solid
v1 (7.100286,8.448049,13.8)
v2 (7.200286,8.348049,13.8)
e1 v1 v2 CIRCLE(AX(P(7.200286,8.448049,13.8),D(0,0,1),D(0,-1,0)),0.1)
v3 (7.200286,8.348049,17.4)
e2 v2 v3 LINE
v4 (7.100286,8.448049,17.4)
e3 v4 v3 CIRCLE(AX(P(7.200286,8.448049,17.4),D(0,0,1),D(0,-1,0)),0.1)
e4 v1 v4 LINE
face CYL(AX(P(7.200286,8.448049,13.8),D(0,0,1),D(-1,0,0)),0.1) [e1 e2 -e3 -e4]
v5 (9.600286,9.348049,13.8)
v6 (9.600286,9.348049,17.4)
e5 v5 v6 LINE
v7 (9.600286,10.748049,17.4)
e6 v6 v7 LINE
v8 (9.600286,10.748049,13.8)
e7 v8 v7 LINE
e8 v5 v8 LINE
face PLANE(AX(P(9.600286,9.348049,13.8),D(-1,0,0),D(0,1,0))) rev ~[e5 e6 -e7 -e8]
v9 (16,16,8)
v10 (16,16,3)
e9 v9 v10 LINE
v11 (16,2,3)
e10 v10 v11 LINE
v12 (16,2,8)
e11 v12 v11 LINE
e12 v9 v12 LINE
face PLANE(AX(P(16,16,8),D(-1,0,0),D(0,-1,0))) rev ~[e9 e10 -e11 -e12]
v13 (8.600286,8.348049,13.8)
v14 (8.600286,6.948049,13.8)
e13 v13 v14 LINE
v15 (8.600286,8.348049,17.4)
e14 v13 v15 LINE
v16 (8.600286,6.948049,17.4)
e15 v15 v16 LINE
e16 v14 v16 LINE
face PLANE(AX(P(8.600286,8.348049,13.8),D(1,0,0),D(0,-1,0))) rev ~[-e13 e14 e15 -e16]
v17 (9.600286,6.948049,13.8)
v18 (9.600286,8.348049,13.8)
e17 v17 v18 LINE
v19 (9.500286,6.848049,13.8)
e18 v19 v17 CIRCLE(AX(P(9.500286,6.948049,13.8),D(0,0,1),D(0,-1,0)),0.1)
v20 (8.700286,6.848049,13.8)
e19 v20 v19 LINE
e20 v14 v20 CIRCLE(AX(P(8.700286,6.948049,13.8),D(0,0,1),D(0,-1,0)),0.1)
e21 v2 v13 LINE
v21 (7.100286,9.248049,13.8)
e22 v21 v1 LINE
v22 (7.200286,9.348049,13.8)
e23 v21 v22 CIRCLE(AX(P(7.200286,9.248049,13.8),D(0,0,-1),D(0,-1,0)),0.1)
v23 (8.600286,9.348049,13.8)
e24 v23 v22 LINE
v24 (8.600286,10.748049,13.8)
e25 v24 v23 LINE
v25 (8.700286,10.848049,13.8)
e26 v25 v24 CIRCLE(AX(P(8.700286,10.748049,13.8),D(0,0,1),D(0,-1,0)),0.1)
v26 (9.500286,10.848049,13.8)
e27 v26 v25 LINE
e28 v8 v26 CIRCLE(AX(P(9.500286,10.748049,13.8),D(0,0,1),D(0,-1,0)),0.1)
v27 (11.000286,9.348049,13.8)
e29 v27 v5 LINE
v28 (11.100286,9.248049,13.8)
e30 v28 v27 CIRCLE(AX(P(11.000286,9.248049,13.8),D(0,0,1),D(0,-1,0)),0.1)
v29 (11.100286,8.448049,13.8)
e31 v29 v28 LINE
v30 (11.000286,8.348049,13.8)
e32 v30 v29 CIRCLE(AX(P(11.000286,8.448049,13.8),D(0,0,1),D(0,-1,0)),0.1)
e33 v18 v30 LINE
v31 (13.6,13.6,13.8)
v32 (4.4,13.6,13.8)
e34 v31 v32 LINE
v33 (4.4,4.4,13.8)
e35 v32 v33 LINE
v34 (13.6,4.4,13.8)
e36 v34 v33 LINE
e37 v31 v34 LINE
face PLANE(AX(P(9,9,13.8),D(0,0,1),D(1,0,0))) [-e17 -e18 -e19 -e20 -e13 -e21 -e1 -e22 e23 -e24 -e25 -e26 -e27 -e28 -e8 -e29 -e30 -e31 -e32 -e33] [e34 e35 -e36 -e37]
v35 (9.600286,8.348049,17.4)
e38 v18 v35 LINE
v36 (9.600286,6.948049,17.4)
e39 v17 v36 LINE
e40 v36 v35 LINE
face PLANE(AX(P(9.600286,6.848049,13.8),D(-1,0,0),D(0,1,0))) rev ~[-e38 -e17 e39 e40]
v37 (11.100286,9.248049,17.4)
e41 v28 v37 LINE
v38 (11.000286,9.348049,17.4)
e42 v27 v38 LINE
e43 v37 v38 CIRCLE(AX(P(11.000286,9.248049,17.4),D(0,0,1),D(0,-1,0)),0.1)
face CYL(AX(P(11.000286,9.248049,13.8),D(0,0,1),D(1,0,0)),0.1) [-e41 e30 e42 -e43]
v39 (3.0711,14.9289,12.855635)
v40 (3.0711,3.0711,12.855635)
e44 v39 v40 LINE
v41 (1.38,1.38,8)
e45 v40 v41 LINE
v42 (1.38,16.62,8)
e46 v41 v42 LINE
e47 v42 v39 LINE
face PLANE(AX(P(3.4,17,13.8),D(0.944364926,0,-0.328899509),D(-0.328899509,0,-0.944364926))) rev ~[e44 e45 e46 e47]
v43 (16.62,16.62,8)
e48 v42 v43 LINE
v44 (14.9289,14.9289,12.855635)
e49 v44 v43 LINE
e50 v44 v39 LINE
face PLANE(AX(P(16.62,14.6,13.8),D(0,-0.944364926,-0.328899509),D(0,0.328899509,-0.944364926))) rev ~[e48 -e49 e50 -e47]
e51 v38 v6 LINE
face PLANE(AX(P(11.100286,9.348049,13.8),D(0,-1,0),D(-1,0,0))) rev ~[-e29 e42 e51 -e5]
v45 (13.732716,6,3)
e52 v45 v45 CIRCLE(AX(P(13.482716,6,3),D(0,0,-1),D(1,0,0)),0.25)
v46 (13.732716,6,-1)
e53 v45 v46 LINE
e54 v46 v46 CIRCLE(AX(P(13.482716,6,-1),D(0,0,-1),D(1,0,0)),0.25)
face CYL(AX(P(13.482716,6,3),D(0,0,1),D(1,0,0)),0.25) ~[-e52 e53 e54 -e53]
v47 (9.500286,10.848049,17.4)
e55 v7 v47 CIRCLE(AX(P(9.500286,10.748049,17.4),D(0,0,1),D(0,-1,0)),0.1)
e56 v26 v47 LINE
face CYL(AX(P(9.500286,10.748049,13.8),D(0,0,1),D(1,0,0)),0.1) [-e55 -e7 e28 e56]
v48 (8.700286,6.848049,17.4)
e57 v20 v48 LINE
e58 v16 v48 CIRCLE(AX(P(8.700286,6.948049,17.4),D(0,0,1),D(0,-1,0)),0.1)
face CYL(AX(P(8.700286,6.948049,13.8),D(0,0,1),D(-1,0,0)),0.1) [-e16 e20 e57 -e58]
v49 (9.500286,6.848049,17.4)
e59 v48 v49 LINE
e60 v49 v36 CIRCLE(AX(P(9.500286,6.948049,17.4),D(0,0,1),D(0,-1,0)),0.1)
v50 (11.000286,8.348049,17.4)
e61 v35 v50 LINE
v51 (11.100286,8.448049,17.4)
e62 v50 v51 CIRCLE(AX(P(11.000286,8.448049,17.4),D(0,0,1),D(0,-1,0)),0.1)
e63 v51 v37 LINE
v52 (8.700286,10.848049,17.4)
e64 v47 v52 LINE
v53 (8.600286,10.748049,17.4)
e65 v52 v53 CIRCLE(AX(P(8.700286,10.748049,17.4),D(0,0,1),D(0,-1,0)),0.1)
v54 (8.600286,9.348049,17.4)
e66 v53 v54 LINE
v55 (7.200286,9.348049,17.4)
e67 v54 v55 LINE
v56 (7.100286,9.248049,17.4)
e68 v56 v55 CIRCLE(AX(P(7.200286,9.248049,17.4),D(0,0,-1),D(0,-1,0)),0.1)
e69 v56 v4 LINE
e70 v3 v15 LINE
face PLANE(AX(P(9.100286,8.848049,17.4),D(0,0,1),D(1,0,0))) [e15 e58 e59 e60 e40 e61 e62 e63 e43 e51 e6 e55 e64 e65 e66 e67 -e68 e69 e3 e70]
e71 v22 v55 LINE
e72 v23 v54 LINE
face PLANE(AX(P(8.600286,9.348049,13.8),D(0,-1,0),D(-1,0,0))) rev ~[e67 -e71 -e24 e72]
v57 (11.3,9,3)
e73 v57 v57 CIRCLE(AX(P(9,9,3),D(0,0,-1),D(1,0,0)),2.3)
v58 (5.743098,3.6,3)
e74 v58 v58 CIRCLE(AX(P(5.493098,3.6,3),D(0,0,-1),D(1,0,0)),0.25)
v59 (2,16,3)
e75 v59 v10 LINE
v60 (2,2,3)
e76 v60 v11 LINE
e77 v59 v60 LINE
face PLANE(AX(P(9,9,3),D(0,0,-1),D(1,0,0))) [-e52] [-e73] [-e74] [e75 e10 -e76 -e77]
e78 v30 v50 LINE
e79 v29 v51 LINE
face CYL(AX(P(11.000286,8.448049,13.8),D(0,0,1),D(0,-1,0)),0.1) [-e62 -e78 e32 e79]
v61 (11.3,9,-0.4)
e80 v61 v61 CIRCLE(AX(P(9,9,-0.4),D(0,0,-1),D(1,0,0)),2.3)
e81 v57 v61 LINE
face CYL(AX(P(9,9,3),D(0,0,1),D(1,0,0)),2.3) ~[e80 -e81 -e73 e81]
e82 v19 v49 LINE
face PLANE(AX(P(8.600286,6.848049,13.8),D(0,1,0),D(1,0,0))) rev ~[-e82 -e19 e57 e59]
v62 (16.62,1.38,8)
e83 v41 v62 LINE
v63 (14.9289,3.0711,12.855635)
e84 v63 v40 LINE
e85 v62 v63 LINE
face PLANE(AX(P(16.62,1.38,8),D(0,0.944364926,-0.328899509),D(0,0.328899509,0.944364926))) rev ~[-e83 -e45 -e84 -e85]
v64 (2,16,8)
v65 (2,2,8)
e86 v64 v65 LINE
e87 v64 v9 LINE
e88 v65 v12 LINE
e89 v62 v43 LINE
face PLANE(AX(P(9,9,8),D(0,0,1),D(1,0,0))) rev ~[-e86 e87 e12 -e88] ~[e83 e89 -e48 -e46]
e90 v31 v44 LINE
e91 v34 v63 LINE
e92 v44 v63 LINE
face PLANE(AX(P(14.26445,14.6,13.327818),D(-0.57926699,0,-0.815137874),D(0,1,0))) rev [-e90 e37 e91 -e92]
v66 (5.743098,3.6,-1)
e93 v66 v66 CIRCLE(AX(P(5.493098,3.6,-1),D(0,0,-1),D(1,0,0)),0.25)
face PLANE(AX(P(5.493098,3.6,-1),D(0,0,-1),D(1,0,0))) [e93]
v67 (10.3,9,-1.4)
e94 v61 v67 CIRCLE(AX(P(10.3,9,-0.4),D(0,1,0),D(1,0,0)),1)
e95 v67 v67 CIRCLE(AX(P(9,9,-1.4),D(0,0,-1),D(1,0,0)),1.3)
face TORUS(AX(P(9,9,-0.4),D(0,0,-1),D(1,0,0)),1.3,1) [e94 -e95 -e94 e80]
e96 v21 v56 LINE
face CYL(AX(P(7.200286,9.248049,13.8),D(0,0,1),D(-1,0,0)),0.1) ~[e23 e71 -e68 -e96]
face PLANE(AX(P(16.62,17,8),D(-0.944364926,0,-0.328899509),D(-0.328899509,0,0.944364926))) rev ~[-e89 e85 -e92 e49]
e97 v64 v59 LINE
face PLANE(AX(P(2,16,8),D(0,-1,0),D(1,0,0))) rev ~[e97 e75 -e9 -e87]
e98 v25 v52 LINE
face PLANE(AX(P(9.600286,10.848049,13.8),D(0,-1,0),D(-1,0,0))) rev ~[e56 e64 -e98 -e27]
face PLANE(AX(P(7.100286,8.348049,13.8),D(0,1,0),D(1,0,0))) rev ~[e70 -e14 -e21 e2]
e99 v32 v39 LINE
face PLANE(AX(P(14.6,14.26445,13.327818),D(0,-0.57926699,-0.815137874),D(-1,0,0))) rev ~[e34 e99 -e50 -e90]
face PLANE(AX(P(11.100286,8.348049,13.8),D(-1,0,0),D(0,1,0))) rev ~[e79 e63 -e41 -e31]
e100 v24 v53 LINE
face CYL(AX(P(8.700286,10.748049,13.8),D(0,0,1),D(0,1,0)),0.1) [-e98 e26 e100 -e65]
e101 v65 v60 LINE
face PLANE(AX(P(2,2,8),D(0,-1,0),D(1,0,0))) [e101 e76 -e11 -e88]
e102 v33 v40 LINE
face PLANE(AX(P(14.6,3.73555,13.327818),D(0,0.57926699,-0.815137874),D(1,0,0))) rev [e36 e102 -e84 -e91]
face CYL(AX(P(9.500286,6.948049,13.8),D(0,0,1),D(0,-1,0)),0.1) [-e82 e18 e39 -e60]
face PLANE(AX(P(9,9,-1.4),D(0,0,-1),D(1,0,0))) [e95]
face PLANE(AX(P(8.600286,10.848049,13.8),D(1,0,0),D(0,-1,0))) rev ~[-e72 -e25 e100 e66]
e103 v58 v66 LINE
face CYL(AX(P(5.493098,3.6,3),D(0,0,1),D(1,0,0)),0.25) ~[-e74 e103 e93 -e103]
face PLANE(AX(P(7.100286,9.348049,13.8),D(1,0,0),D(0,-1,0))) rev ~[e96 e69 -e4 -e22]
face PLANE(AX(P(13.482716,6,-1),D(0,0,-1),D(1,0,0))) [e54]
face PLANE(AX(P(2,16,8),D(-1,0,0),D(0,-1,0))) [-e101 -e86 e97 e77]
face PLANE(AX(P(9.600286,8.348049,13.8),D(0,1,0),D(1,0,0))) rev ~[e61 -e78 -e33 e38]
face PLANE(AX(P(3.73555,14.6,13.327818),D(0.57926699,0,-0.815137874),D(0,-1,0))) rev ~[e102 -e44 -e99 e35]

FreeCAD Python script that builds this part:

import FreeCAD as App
import Part
import Sketcher

V = App.Vector


def edges_at(feature, points):
    """Names of the edges that pass closest to the given points."""
    edges = feature.Shape.Edges
    near = lambda p: min(range(len(edges)), key=lambda i: edges[i].distToShape(Part.Vertex(*p))[0])
    return sorted({f"Edge{near(p) + 1}" for p in points})

doc = App.newDocument("Part")
body = doc.addObject("PartDesign::Body", "Body")

# Sketch on XY plane
sketch1 = doc.addObject("Sketcher::SketchObject", "Sketch")
body.addObject(sketch1)
sketch1.AttachmentSupport = (doc.XY_Plane, [""])
sketch1.MapMode = "FlatFace"
sketch1.addGeometry(Part.LineSegment(V(0, 14, 0), V(0, 0, 0)), False)
sketch1.addGeometry(Part.LineSegment(V(0, 0, 0), V(14, 0, 0)), False)
sketch1.addGeometry(Part.LineSegment(V(14, 0, 0), V(14, 14, 0)), False)
sketch1.addGeometry(Part.LineSegment(V(14, 14, 0), V(0, 14, 0)), False)
sketch1.addConstraint(Sketcher.Constraint("Coincident", 0, 2, 1, 1))
sketch1.addConstraint(Sketcher.Constraint("Coincident", 1, 2, 2, 1))
sketch1.addConstraint(Sketcher.Constraint("Coincident", 2, 2, 3, 1))
sketch1.addConstraint(Sketcher.Constraint("Coincident", 3, 2, 0, 1))
sketch1.addConstraint(Sketcher.Constraint("Vertical", 0))
sketch1.addConstraint(Sketcher.Constraint("Horizontal", 1))
sketch1.addConstraint(Sketcher.Constraint("Vertical", 2))
sketch1.addConstraint(Sketcher.Constraint("Horizontal", 3))
sketch1.addConstraint(Sketcher.Constraint("Coincident", 0, 2, -1, 1))
sketch1.addConstraint(Sketcher.Constraint("Equal", 3, 0))
sketch1.addConstraint(Sketcher.Constraint("DistanceX", 1, 1, 1, 2, 14.0))
pad1 = doc.addObject("PartDesign::Pad", "Pad")
body.addObject(pad1)
pad1.Profile = sketch1
pad1.Length = 5

# Sketch on XY plane
sketch2 = doc.addObject("Sketcher::SketchObject", "Sketch001")
body.addObject(sketch2)
sketch2.AttachmentSupport = (doc.XY_Plane, [""])
sketch2.MapMode = "FlatFace"
sketch2.AttachmentOffset = App.Placement(V(0, 0, 5), App.Rotation())
sketch2.addGeometry(Part.Circle(V(7, 7, 0), V(0, 0, 1), 2.3), False)
sketch2.addConstraint(Sketcher.Constraint("Diameter", 0, 4.6))
sketch2.addConstraint(Sketcher.Constraint("DistanceX", -1, 1, 0, 3, 7.0))
sketch2.addConstraint(Sketcher.Constraint("DistanceY", -1, 1, 0, 3, 7.0))
pad2 = doc.addObject("PartDesign::Pad", "Pad001")
body.addObject(pad2)
pad2.Profile = sketch2
pad2.Length = 4.4
doc.recompute()

fillet = doc.addObject("PartDesign::Fillet", "Fillet")
body.addObject(fillet)
fillet.Base = (pad2, edges_at(pad2, [(4.7, 7, 9.4)]))
fillet.Radius = 1

# Sketch on XY plane
sketch3 = doc.addObject("Sketcher::SketchObject", "Sketch002")
body.addObject(sketch3)
sketch3.AttachmentSupport = (doc.XY_Plane, [""])
sketch3.MapMode = "FlatFace"
sketch3.addGeometry(Part.LineSegment(V(-1, -1, 0), V(-1, 15, 0)), False)
sketch3.addGeometry(Part.LineSegment(V(-1, 15, 0), V(15, 15, 0)), False)
sketch3.addGeometry(Part.LineSegment(V(15, 15, 0), V(15, -1, 0)), False)
sketch3.addGeometry(Part.LineSegment(V(15, -1, 0), V(-1, -1, 0)), False)
sketch3.addConstraint(Sketcher.Constraint("Coincident", 0, 2, 1, 1))
sketch3.addConstraint(Sketcher.Constraint("Coincident", 1, 2, 2, 1))
sketch3.addConstraint(Sketcher.Constraint("Coincident", 2, 2, 3, 1))
sketch3.addConstraint(Sketcher.Constraint("Coincident", 3, 2, 0, 1))
sketch3.addConstraint(Sketcher.Constraint("Vertical", 0))
sketch3.addConstraint(Sketcher.Constraint("Horizontal", 1))
sketch3.addConstraint(Sketcher.Constraint("Vertical", 2))
sketch3.addConstraint(Sketcher.Constraint("Horizontal", 3))
sketch3.addConstraint(Sketcher.Constraint("Equal", 3, 0))
sketch3.addConstraint(Sketcher.Constraint("DistanceX", 1, 1, 1, 2, 15.24))
sketch3.addConstraint(Sketcher.Constraint("DistanceX", 0, 2, -1, 1, 0.62))
sketch3.addConstraint(Sketcher.Constraint("DistanceY", -1, 1, 0, 2, 14.62))
pad3 = doc.addObject("PartDesign::Pad", "Pad002")
body.addObject(pad3)
pad3.Profile = sketch3
pad3.Length = 5.8
pad3.Reversed = True

# Sketch on YZ plane
sketch4 = doc.addObject("Sketcher::SketchObject", "Sketch003")
body.addObject(sketch4)
sketch4.AttachmentSupport = (doc.YZ_Plane, [""])
sketch4.MapMode = "FlatFace"
sketch4.AttachmentOffset = App.Placement(V(0, 0, 14.62), App.Rotation())
sketch4.addGeometry(Part.LineSegment(V(-0.6, -5.8, 0), V(1.4, -5.8, 0)), False)
sketch4.addGeometry(Part.LineSegment(V(1.4, -5.8, 0), V(-0.6, 0, 0)), False)
sketch4.addGeometry(Part.LineSegment(V(-0.6, 0, 0), V(-0.6, -5.8, 0)), False)
sketch4.addGeometry(Part.LineSegment(V(12.6, -5.8, 0), V(14.6, -5.8, 0)), False)
sketch4.addGeometry(Part.LineSegment(V(14.6, -5.8, 0), V(14.6, 0, 0)), False)
sketch4.addGeometry(Part.LineSegment(V(14.6, 0, 0), V(12.6, -5.8, 0)), False)
sketch4.addConstraint(Sketcher.Constraint("Coincident", 0, 2, 1, 1))
sketch4.addConstraint(Sketcher.Constraint("Coincident", 1, 2, 2, 1))
sketch4.addConstraint(Sketcher.Constraint("Coincident", 2, 2, 0, 1))
sketch4.addConstraint(Sketcher.Constraint("Coincident", 3, 2, 4, 1))
sketch4.addConstraint(Sketcher.Constraint("Coincident", 4, 2, 5, 1))
sketch4.addConstraint(Sketcher.Constraint("Coincident", 5, 2, 3, 1))
sketch4.addConstraint(Sketcher.Constraint("Horizontal", 0))
sketch4.addConstraint(Sketcher.Constraint("Vertical", 2))
sketch4.addConstraint(Sketcher.Constraint("Horizontal", 3))
sketch4.addConstraint(Sketcher.Constraint("Vertical", 4))
sketch4.addConstraint(Sketcher.Constraint("PointOnObject", 1, 2, -1))
sketch4.addConstraint(Sketcher.Constraint("PointOnObject", 4, 2, -1))
sketch4.addConstraint(Sketcher.Constraint("Horizontal", 2, 2, 3, 2))
sketch4.addConstraint(Sketcher.Constraint("Equal", 0, 3))
sketch4.addConstraint(Sketcher.Constraint("DistanceY", 2, 2, 2, 1, 5.8))
sketch4.addConstraint(Sketcher.Constraint("DistanceX", 0, 1, 0, 2, 2.02))
sketch4.addConstraint(Sketcher.Constraint("DistanceX", -1, 1, 0, 2, 1.4))
sketch4.addConstraint(Sketcher.Constraint("DistanceX", -1, 1, 5, 2, 12.6))
pocket1 = doc.addObject("PartDesign::Pocket", "Pocket")
body.addObject(pocket1)
pocket1.Profile = sketch4
pocket1.Type = "ThroughAll"

# Sketch on XZ plane
sketch5 = doc.addObject("Sketcher::SketchObject", "Sketch004")
body.addObject(sketch5)
sketch5.AttachmentSupport = (doc.XZ_Plane, [""])
sketch5.MapMode = "FlatFace"
sketch5.AttachmentOffset = App.Placement(V(0, 0, 1), App.Rotation())
sketch5.addGeometry(Part.LineSegment(V(12.6, -5.8, 0), V(14.6, -5.8, 0)), False)
sketch5.addGeometry(Part.LineSegment(V(14.6, -5.8, 0), V(14.6, 0, 0)), False)
sketch5.addGeometry(Part.LineSegment(V(14.6, 0, 0), V(12.6, -5.8, 0)), False)
sketch5.addGeometry(Part.LineSegment(V(-0.6, -5.8, 0), V(1.4, -5.8, 0)), False)
sketch5.addGeometry(Part.LineSegment(V(1.4, -5.8, 0), V(-0.6, 0, 0)), False)
sketch5.addGeometry(Part.LineSegment(V(-0.6, 0, 0), V(-0.6, -5.8, 0)), False)
sketch5.addConstraint(Sketcher.Constraint("Coincident", 0, 2, 1, 1))
sketch5.addConstraint(Sketcher.Constraint("Coincident", 1, 2, 2, 1))
sketch5.addConstraint(Sketcher.Constraint("Coincident", 2, 2, 0, 1))
sketch5.addConstraint(Sketcher.Constraint("Coincident", 3, 2, 4, 1))
sketch5.addConstraint(Sketcher.Constraint("Coincident", 4, 2, 5, 1))
sketch5.addConstraint(Sketcher.Constraint("Coincident", 5, 2, 3, 1))
sketch5.addConstraint(Sketcher.Constraint("Horizontal", 0))
sketch5.addConstraint(Sketcher.Constraint("Vertical", 1))
sketch5.addConstraint(Sketcher.Constraint("Horizontal", 3))
sketch5.addConstraint(Sketcher.Constraint("Vertical", 5))
sketch5.addConstraint(Sketcher.Constraint("PointOnObject", 1, 2, -1))
sketch5.addConstraint(Sketcher.Constraint("PointOnObject", 4, 2, -1))
sketch5.addConstraint(Sketcher.Constraint("Horizontal", 2, 2, 3, 2))
sketch5.addConstraint(Sketcher.Constraint("Equal", 0, 3))
sketch5.addConstraint(Sketcher.Constraint("DistanceY", 1, 1, 1, 2, 5.8))
sketch5.addConstraint(Sketcher.Constraint("DistanceX", 0, 1, 0, 2, 2.02))
sketch5.addConstraint(Sketcher.Constraint("DistanceX", -1, 1, 2, 2, 12.6))
sketch5.addConstraint(Sketcher.Constraint("DistanceX", -1, 1, 3, 2, 1.4))
pocket2 = doc.addObject("PartDesign::Pocket", "Pocket001")
body.addObject(pocket2)
pocket2.Profile = sketch5
pocket2.Type = "ThroughAll"

# Sketch on XY plane
sketch6 = doc.addObject("Sketcher::SketchObject", "Sketch005")
body.addObject(sketch6)
sketch6.AttachmentSupport = (doc.XY_Plane, [""])
sketch6.MapMode = "FlatFace"
sketch6.AttachmentOffset = App.Placement(V(0, 0, -5.8), App.Rotation())
sketch6.addGeometry(Part.LineSegment(V(5.1, 6.7, 0), V(5.1, 7.7, 0)), False)
sketch6.addGeometry(Part.LineSegment(V(5.1, 7.7, 0), V(6.6, 7.7, 0)), False)
sketch6.addGeometry(Part.LineSegment(V(6.6, 7.7, 0), V(6.6, 9.2, 0)), False)
sketch6.addGeometry(Part.LineSegment(V(6.6, 9.2, 0), V(7.6, 9.2, 0)), False)
sketch6.addGeometry(Part.LineSegment(V(7.6, 9.2, 0), V(7.6, 7.7, 0)), False)
sketch6.addGeometry(Part.LineSegment(V(7.6, 7.7, 0), V(9.1, 7.7, 0)), False)
sketch6.addGeometry(Part.LineSegment(V(9.1, 7.7, 0), V(9.1, 6.7, 0)), False)
sketch6.addGeometry(Part.LineSegment(V(9.1, 6.7, 0), V(7.6, 6.7, 0)), False)
sketch6.addGeometry(Part.LineSegment(V(7.6, 6.7, 0), V(7.6, 5.2, 0)), False)
sketch6.addGeometry(Part.LineSegment(V(7.6, 5.2, 0), V(6.6, 5.2, 0)), False)
sketch6.addGeometry(Part.LineSegment(V(6.6, 5.2, 0), V(6.6, 6.7, 0)), False)
sketch6.addGeometry(Part.LineSegment(V(6.6, 6.7, 0), V(5.1, 6.7, 0)), False)
sketch6.addConstraint(Sketcher.Constraint("Coincident", 0, 2, 1, 1))
sketch6.addConstraint(Sketcher.Constraint("Coincident", 1, 2, 2, 1))
sketch6.addConstraint(Sketcher.Constraint("Coincident", 2, 2, 3, 1))
sketch6.addConstraint(Sketcher.Constraint("Coincident", 3, 2, 4, 1))
sketch6.addConstraint(Sketcher.Constraint("Coincident", 4, 2, 5, 1))
sketch6.addConstraint(Sketcher.Constraint("Coincident", 5, 2, 6, 1))
sketch6.addConstraint(Sketcher.Constraint("Coincident", 6, 2, 7, 1))
sketch6.addConstraint(Sketcher.Constraint("Coincident", 7, 2, 8, 1))
sketch6.addConstraint(Sketcher.Constraint("Coincident", 8, 2, 9, 1))
sketch6.addConstraint(Sketcher.Constraint("Coincident", 9, 2, 10, 1))
sketch6.addConstraint(Sketcher.Constraint("Coincident", 10, 2, 11, 1))
sketch6.addConstraint(Sketcher.Constraint("Coincident", 11, 2, 0, 1))
sketch6.addConstraint(Sketcher.Constraint("Vertical", 0))
sketch6.addConstraint(Sketcher.Constraint("Horizontal", 1))
sketch6.addConstraint(Sketcher.Constraint("Vertical", 2))
sketch6.addConstraint(Sketcher.Constraint("Horizontal", 3))
sketch6.addConstraint(Sketcher.Constraint("Vertical", 4))
sketch6.addConstraint(Sketcher.Constraint("Horizontal", 5))
sketch6.addConstraint(Sketcher.Constraint("Vertical", 6))
sketch6.addConstraint(Sketcher.Constraint("Horizontal", 7))
sketch6.addConstraint(Sketcher.Constraint("Vertical", 8))
sketch6.addConstraint(Sketcher.Constraint("Horizontal", 9))
sketch6.addConstraint(Sketcher.Constraint("Vertical", 10))
sketch6.addConstraint(Sketcher.Constraint("Horizontal", 11))
sketch6.addConstraint(Sketcher.Constraint("Horizontal", 1, 2, 4, 2))
sketch6.addConstraint(Sketcher.Constraint("Horizontal", 7, 2, 10, 2))
sketch6.addConstraint(Sketcher.Constraint("Vertical", 4, 2, 7, 2))
sketch6.addConstraint(Sketcher.Constraint("Vertical", 2, 2, 9, 2))
sketch6.addConstraint(Sketcher.Constraint("Equal", 1, 5))
sketch6.addConstraint(Sketcher.Constraint("Equal", 9, 0))
sketch6.addConstraint(Sketcher.Constraint("Equal", 11, 2))
sketch6.addConstraint(Sketcher.Constraint("Equal", 4, 8))
sketch6.addConstraint(Sketcher.Constraint("DistanceX", 3, 1, 3, 2, 1.0))
sketch6.addConstraint(Sketcher.Constraint("DistanceX", 1, 1, 1, 2, 1.5))
sketch6.addConstraint(Sketcher.Constraint("DistanceY", -1, 1, 0, 2, 7.651951))
sketch6.addConstraint(Sketcher.Constraint("DistanceX", -1, 1, 0, 2, 5.100286))
pad4 = doc.addObject("PartDesign::Pad", "Pad003")
body.addObject(pad4)
pad4.Profile = sketch6
pad4.Length = 3.6
pad4.Reversed = True
doc.recompute()

fillet2 = doc.addObject("PartDesign::Fillet", "Fillet001")
body.addObject(fillet2)
fillet2.Base = (pad4, edges_at(pad4, [
    (6.6, 9.152, -7.6),
    (7.6, 9.152, -7.6),
    (5.1, 7.652, -7.6),
    (9.1, 7.652, -7.6),
    (9.1, 6.652, -7.6),
    (7.6, 5.152, -7.6),
    (6.6, 5.152, -7.6),
    (5.1, 6.652, -7.6),
]))
fillet2.Radius = 0.1
doc.recompute()

chamfer = doc.addObject("PartDesign::Chamfer", "Chamfer")
body.addObject(chamfer)
chamfer.Base = (fillet2, edges_at(fillet2, [
    (12.6, 7, -5.8),
    (7, 12.6, -5.8),
    (1.4, 7, -5.8),
    (7, 1.4, -5.8),
]))
chamfer.Size = 1

# Sketch on XY plane
sketch7 = doc.addObject("Sketcher::SketchObject", "Sketch006")
body.addObject(sketch7)
sketch7.AttachmentSupport = (doc.XY_Plane, [""])
sketch7.MapMode = "FlatFace"
sketch7.AttachmentOffset = App.Placement(V(0, 0, 5), App.Rotation())
sketch7.addGeometry(Part.Circle(V(11.48, 10, 0), V(0, 0, 1), 0.25), False)
sketch7.addGeometry(Part.Circle(V(3.49, 12.4, 0), V(0, 0, 1), 0.25), False)
sketch7.addConstraint(Sketcher.Constraint("Equal", 0, 1))
sketch7.addConstraint(Sketcher.Constraint("Diameter", 0, 0.5))
sketch7.addConstraint(Sketcher.Constraint("DistanceY", -1, 1, 0, 3, 10.0))
sketch7.addConstraint(Sketcher.Constraint("DistanceY", -1, 1, 1, 3, 12.4))
sketch7.addConstraint(Sketcher.Constraint("DistanceX", -1, 1, 0, 3, 11.482716))
sketch7.addConstraint(Sketcher.Constraint("DistanceX", -1, 1, 1, 3, 3.493098))
pad5 = doc.addObject("PartDesign::Pad", "Pad004")
body.addObject(pad5)
pad5.Profile = sketch7
pad5.Length = 4
body2 = doc.addObject("PartDesign::Body", "Body001")
doc.recompute()

body.Placement = App.Placement(V(2, 16, 8), App.Rotation(V(1, 0, 0), 180))
boolean = doc.addObject("PartDesign::Boolean", "Boolean")
body2.addObject(boolean)
boolean.Type = "Fuse"
boolean.addObjects([body])

doc.recompute()
